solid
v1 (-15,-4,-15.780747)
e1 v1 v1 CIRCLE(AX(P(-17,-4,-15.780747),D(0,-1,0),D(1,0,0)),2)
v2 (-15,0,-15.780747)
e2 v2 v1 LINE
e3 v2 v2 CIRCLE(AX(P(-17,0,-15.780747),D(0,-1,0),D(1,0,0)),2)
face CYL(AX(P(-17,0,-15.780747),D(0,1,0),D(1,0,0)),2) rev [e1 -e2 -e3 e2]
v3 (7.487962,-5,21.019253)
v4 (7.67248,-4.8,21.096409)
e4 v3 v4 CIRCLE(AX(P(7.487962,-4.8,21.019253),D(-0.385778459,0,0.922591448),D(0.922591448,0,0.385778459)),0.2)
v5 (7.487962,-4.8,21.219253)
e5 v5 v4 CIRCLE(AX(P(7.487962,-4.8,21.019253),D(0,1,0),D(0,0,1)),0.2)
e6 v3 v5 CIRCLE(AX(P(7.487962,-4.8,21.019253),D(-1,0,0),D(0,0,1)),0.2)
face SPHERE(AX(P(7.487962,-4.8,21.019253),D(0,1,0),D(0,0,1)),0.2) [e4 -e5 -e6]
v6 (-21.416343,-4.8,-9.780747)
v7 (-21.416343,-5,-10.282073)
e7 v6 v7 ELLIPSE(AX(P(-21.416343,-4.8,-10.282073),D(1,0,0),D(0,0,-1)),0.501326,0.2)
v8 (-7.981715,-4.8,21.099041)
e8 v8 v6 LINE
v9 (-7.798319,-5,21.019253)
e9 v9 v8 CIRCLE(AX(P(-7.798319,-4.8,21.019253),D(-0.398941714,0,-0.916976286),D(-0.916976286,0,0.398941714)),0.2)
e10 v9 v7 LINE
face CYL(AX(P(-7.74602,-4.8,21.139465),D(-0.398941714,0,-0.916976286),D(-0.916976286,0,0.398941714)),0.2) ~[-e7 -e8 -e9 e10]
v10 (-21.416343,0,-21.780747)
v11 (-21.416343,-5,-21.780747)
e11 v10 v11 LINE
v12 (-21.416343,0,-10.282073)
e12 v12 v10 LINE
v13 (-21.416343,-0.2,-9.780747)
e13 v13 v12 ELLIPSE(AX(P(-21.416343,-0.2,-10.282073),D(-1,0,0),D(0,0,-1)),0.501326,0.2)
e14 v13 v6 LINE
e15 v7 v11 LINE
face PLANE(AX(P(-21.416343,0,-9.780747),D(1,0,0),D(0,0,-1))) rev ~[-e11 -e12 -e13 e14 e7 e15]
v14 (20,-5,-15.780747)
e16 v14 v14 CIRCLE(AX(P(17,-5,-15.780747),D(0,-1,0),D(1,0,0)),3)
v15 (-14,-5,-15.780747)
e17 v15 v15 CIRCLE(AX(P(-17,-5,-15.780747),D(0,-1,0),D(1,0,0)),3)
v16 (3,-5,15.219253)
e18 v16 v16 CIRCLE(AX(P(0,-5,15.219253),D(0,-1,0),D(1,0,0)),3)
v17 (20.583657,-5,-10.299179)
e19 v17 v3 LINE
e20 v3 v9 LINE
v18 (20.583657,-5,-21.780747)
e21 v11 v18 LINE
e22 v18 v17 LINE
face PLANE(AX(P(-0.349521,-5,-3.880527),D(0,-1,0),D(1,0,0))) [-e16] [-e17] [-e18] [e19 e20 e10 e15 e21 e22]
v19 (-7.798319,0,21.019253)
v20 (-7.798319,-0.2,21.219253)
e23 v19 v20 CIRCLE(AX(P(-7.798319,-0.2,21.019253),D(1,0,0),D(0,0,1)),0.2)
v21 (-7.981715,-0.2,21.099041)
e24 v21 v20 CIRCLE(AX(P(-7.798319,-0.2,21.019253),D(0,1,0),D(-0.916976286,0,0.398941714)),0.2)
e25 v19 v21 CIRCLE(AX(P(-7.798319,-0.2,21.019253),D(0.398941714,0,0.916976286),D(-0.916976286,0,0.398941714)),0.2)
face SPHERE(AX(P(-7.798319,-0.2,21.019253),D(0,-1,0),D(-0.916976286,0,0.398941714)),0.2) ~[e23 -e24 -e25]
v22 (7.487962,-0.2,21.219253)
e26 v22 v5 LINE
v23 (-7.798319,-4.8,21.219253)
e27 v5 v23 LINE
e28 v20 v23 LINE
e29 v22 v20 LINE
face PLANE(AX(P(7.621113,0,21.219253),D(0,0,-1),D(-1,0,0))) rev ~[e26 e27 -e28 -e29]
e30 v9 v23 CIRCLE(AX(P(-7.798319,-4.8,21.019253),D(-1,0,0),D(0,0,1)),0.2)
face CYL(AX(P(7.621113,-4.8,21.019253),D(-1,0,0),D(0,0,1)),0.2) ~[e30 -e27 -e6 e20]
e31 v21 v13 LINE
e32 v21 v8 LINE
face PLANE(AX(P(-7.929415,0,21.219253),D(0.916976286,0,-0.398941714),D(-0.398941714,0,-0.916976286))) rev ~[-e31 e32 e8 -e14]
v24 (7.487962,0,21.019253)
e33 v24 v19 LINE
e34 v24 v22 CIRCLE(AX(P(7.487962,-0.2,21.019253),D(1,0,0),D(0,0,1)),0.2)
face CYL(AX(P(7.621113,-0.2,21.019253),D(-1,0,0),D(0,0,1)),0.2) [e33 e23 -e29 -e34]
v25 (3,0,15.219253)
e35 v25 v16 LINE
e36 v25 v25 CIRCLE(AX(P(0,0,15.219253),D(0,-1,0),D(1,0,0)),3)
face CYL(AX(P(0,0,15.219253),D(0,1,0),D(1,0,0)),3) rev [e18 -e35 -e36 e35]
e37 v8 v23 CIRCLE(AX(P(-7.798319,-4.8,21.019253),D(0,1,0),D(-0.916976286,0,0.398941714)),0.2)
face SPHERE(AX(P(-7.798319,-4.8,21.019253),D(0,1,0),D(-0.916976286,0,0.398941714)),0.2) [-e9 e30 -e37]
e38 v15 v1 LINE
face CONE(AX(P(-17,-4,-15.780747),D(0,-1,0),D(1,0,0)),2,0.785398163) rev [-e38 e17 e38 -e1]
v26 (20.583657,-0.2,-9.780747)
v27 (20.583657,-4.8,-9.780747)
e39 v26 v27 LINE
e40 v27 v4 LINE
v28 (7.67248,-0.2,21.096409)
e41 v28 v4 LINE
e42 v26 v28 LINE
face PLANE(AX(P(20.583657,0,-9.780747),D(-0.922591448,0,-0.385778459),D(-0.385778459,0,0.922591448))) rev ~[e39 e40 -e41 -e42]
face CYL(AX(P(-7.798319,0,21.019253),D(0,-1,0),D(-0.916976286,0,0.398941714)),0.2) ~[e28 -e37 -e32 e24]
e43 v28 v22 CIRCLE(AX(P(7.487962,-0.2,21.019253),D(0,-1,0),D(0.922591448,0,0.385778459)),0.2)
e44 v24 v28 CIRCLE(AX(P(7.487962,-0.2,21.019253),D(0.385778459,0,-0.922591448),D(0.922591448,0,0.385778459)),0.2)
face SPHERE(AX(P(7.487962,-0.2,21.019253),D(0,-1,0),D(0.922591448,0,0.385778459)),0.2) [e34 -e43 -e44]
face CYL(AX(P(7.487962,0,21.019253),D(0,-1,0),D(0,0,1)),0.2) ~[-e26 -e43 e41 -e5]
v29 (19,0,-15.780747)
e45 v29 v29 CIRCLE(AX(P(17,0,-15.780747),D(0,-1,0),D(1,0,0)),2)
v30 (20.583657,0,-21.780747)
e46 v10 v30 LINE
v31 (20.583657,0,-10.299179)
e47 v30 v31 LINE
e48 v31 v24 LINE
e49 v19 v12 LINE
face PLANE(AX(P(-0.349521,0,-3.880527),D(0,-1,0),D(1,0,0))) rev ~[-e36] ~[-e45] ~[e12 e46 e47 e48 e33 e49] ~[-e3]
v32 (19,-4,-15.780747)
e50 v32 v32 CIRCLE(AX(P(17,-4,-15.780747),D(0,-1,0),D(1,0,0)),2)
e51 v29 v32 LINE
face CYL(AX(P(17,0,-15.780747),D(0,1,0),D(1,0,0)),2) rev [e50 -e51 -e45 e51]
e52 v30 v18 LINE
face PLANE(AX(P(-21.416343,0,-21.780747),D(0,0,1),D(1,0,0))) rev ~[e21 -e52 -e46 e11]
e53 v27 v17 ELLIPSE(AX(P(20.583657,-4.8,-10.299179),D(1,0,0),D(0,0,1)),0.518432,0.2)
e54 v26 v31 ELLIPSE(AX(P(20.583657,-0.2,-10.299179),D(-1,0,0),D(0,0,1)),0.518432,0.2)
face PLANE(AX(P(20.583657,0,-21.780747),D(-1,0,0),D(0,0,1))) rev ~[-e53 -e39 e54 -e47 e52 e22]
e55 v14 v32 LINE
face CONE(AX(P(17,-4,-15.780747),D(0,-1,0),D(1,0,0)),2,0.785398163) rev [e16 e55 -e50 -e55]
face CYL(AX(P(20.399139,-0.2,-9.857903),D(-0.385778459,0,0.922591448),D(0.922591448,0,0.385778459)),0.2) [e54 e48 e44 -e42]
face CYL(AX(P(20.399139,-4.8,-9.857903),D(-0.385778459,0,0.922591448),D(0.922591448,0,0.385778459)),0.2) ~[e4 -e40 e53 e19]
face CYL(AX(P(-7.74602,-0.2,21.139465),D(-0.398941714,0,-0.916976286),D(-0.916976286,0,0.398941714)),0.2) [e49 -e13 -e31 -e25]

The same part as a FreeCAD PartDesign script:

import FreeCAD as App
import Part
import Sketcher
Q = App.Units.Quantity


def edges_at(feature, points):
    """Names of the edges that pass closest to the given points."""
    edges = feature.Shape.Edges
    near = lambda p: min(range(len(edges)), key=lambda i: edges[i].distToShape(Part.Vertex(*p))[0])
    return sorted({f"Edge{near(p) + 1}" for p in points})

doc = App.newDocument("Part")
params = doc.addObject("Spreadsheet::Sheet", "Params")
for row, (alias, value) in enumerate([
    ("sketch1_diameter", "4 mm"),
    ("sketch1_diameter2", "6 mm"),
    ("sketch1_width", "42 mm"),
    ("sketch1_height", "12 mm"),
    ("pad1_length", "5 mm"),
    ("fillet_radius", "0.2 mm"),
    ("chamfer_size", "1 mm"),
], start=1):
    params.set(f"A{row}", alias)
    params.set(f"B{row}", "=" + value)
    params.setAlias(f"B{row}", alias)

body = doc.addObject("PartDesign::Body", "Body")

# Sketch on XZ plane
sketch1 = doc.addObject("Sketcher::SketchObject", "Sketch")
body.addObject(sketch1)
sketch1.AttachmentSupport = (doc.XZ_Plane, [""])
sketch1.MapMode = "FlatFace"
sketch1.addGeometry(Part.LineSegment(App.Vector(-21.4, -9.8, 0), App.Vector(-21.4, -21.8, 0)), False)
sketch1.addGeometry(Part.LineSegment(App.Vector(-21.4, -21.8, 0), App.Vector(20.6, -21.8, 0)), False)
sketch1.addGeometry(Part.LineSegment(App.Vector(20.6, -21.8, 0), App.Vector(20.6, -9.8, 0)), False)
sketch1.addGeometry(Part.LineSegment(App.Vector(20.6, -9.8, 0), App.Vector(7.6, 21.2, 0)), False)
sketch1.addGeometry(Part.LineSegment(App.Vector(7.6, 21.2, 0), App.Vector(-7.9, 21.2, 0)), False)
sketch1.addGeometry(Part.LineSegment(App.Vector(-7.9, 21.2, 0), App.Vector(-21.4, -9.8, 0)), False)
sketch1.addGeometry(Part.Circle(App.Vector(-17, -15.8, 0), App.Vector(0, 0, 1), 2), False)
sketch1.addGeometry(Part.Circle(App.Vector(17, -15.8, 0), App.Vector(0, 0, 1), 2), False)
sketch1.addGeometry(Part.Circle(App.Vector(0, 15.2, 0), App.Vector(0, 0, 1), 3), False)
sketch1.addConstraint(Sketcher.Constraint("Coincident", 0, 2, 1, 1))
sketch1.addConstraint(Sketcher.Constraint("Coincident", 1, 2, 2, 1))
sketch1.addConstraint(Sketcher.Constraint("Coincident", 2, 2, 3, 1))
sketch1.addConstraint(Sketcher.Constraint("Coincident", 3, 2, 4, 1))
sketch1.addConstraint(Sketcher.Constraint("Coincident", 4, 2, 5, 1))
sketch1.addConstraint(Sketcher.Constraint("Coincident", 5, 2, 0, 1))
sketch1.addConstraint(Sketcher.Constraint("Vertical", 0))
sketch1.addConstraint(Sketcher.Constraint("Horizontal", 1))
sketch1.addConstraint(Sketcher.Constraint("Vertical", 2))
sketch1.addConstraint(Sketcher.Constraint("Horizontal", 4))
sketch1.addConstraint(Sketcher.Constraint("Equal", 6, 7))
sketch1.addConstraint(Sketcher.Constraint("Symmetric", 6, 3, 7, 3, -2))
sketch1.addConstraint(Sketcher.Constraint("PointOnObject", 8, 3, -2))
sketch1.addConstraint(Sketcher.Constraint("Horizontal", 2, 2, 5, 2))
sketch1.addConstraint(Sketcher.Constraint("Diameter", 6, Q("4 mm")))
sketch1.addConstraint(Sketcher.Constraint("Diameter", 8, Q("6 mm")))
sketch1.addConstraint(Sketcher.Constraint("DistanceX", 1, 1, 1, 2, Q("42 mm")))
sketch1.addConstraint(Sketcher.Constraint("DistanceY", 0, 2, 0, 1, Q("12 mm")))
sketch1.addConstraint(Sketcher.Constraint("DistanceX", 6, 3, -1, 1, Q("17 mm")))
sketch1.addConstraint(Sketcher.Constraint("DistanceY", 6, 3, 8, 3, Q("31 mm")))
sketch1.addConstraint(Sketcher.Constraint("DistanceY", 0, 2, 6, 3, Q("6 mm")))
sketch1.addConstraint(Sketcher.Constraint("DistanceY", 8, 3, 3, 2, Q("6 mm")))
sketch1.addConstraint(Sketcher.Constraint("DistanceX", 4, 2, 4, 1, Q("15.550528 mm")))
sketch1.addConstraint(Sketcher.Constraint("DistanceX", 4, 2, 2, 2, Q("28.513072 mm")))
sketch1.addConstraint(Sketcher.Constraint("DistanceY", 6, 3, -1, 1, Q("15.780747 mm")))
sketch1.addConstraint(Sketcher.Constraint("DistanceX", 0, 2, -1, 1, Q("21.416343 mm")))
sketch1.setExpression("Constraints[14]", "Params.sketch1_diameter")
sketch1.setExpression("Constraints[15]", "Params.sketch1_diameter2")
sketch1.setExpression("Constraints[16]", "Params.sketch1_width")
sketch1.setExpression("Constraints[17]", "Params.sketch1_height")
pad1 = doc.addObject("PartDesign::Pad", "Pad")
body.addObject(pad1)
pad1.Profile = sketch1
pad1.setExpression("Length", "Params.pad1_length")
doc.recompute()

fillet = doc.addObject("PartDesign::Fillet", "Fillet")
body.addObject(fillet)
fillet.Base = (pad1, edges_at(pad1, [
    (-14.673, -5, 5.719),
    (-0.154, -5, 21.219),
    (14.102, -5, 5.719),
    (14.102, 0, 5.719),
    (-0.154, 0, 21.219),
    (7.621, -2.5, 21.219),
    (-7.929, -2.5, 21.219),
    (-14.673, 0, 5.719),
]))
fillet.setExpression("Radius", "Params.fillet_radius")
doc.recompute()

chamfer = doc.addObject("PartDesign::Chamfer", "Chamfer")
body.addObject(chamfer)
chamfer.Base = (fillet, edges_at(fillet, [(-19, -5, -15.781), (15, -5, -15.781)]))
chamfer.setExpression("Size", "Params.chamfer_size")

doc.recompute()
